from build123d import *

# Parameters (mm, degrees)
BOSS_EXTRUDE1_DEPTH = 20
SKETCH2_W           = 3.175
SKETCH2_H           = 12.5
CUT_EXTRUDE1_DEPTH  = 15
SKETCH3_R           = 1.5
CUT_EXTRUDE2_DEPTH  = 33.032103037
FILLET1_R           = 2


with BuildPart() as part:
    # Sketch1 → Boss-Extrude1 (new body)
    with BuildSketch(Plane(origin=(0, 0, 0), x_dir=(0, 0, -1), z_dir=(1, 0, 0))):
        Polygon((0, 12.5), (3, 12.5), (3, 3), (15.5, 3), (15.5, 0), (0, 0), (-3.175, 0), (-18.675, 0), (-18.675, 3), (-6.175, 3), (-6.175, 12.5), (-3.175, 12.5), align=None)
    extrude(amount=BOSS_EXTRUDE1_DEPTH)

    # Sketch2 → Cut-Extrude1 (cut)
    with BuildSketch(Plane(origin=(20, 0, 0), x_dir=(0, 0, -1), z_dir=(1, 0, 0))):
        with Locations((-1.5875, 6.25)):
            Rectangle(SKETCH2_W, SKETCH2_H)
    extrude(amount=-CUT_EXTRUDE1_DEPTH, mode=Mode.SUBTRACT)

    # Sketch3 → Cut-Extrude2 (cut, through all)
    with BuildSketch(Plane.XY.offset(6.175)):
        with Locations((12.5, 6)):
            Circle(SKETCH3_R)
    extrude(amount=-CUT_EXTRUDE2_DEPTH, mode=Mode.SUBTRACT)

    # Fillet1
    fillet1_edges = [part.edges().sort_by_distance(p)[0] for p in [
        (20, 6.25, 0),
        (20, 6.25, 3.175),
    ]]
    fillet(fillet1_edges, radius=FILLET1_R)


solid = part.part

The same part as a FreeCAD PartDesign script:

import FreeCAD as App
import Part
import Sketcher
from FreeCAD import Vector


def edges_at(feature, points):
    """Names of the edges that pass closest to the given points."""
    edges = feature.Shape.Edges
    near = lambda p: min(range(len(edges)), key=lambda i: edges[i].distToShape(Part.Vertex(*p))[0])
    return sorted({f"Edge{near(p) + 1}" for p in points})

doc = App.newDocument("Part")
body = doc.addObject("PartDesign::Body", "Body")

sketch1 = body.newObject("Sketcher::SketchObject", "Sketch")
sketch1.AttachmentSupport = (doc.getObject("YZ_Plane"), [""])
sketch1.MapMode = "FlatFace"
sketch1.addGeometry(Part.LineSegment(Vector(12.5, -3, 0), Vector(12.5, 6.2, 0)), False)
sketch1.addGeometry(Part.LineSegment(Vector(12.5, 6.2, 0), Vector(3, 6.2, 0)), False)
sketch1.addGeometry(Part.LineSegment(Vector(3, 6.2, 0), Vector(3, 18.7, 0)), False)
sketch1.addGeometry(Part.LineSegment(Vector(3, 18.7, 0), Vector(0, 18.7, 0)), False)
sketch1.addGeometry(Part.LineSegment(Vector(0, 18.7, 0), Vector(0, -15.5, 0)), False)
sketch1.addGeometry(Part.LineSegment(Vector(0, -15.5, 0), Vector(3, -15.5, 0)), False)
sketch1.addGeometry(Part.LineSegment(Vector(3, -15.5, 0), Vector(3, -3, 0)), False)
sketch1.addGeometry(Part.LineSegment(Vector(3, -3, 0), Vector(12.5, -3, 0)), False)
sketch1.addConstraint(Sketcher.Constraint("Coincident", 0, 2, 1, 1))
sketch1.addConstraint(Sketcher.Constraint("Coincident", 1, 2, 2, 1))
sketch1.addConstraint(Sketcher.Constraint("Coincident", 2, 2, 3, 1))
sketch1.addConstraint(Sketcher.Constraint("Coincident", 3, 2, 4, 1))
sketch1.addConstraint(Sketcher.Constraint("Coincident", 4, 2, 5, 1))
sketch1.addConstraint(Sketcher.Constraint("Coincident", 5, 2, 6, 1))
sketch1.addConstraint(Sketcher.Constraint("Coincident", 6, 2, 7, 1))
sketch1.addConstraint(Sketcher.Constraint("Coincident", 7, 2, 0, 1))
sketch1.addConstraint(Sketcher.Constraint("Vertical", 0))
sketch1.addConstraint(Sketcher.Constraint("Horizontal", 1))
sketch1.addConstraint(Sketcher.Constraint("Vertical", 2))
sketch1.addConstraint(Sketcher.Constraint("Horizontal", 3))
sketch1.addConstraint(Sketcher.Constraint("Vertical", 4))
sketch1.addConstraint(Sketcher.Constraint("Horizontal", 5))
sketch1.addConstraint(Sketcher.Constraint("Vertical", 6))
sketch1.addConstraint(Sketcher.Constraint("Horizontal", 7))
sketch1.addConstraint(Sketcher.Constraint("PointOnObject", 3, 2, -2))
sketch1.addConstraint(Sketcher.Constraint("Vertical", 2, 2, 5, 2))
sketch1.addConstraint(Sketcher.Constraint("Equal", 2, 6))
sketch1.addConstraint(Sketcher.Constraint("DistanceX", 3, 2, 3, 1, 3.0))
sketch1.addConstraint(Sketcher.Constraint("DistanceX", 1, 2, 1, 1, 9.5))
sketch1.addConstraint(Sketcher.Constraint("DistanceY", 2, 1, 2, 2, 12.5))
sketch1.addConstraint(Sketcher.Constraint("DistanceY", 6, 2, -1, 1, 3.0))
sketch1.addConstraint(Sketcher.Constraint("DistanceY", 0, 1, 0, 2, 9.175))
pad1 = body.newObject("PartDesign::Pad", "Pad")
pad1.Profile = sketch1
pad1.Length = 20

sketch2 = body.newObject("Sketcher::SketchObject", "Sketch001")
sketch2.AttachmentSupport = (doc.getObject("YZ_Plane"), [""])
sketch2.MapMode = "FlatFace"
sketch2.AttachmentOffset = App.Placement(Vector(0, 0, 20), App.Rotation())
sketch2.addGeometry(Part.LineSegment(Vector(12.5, 3.2, 0), Vector(0, 3.2, 0)), False)
sketch2.addGeometry(Part.LineSegment(Vector(0, 3.2, 0), Vector(0, 0, 0)), False)
sketch2.addGeometry(Part.LineSegment(Vector(0, 0, 0), Vector(12.5, 0, 0)), False)
sketch2.addGeometry(Part.LineSegment(Vector(12.5, 0, 0), Vector(12.5, 3.2, 0)), False)
sketch2.addConstraint(Sketcher.Constraint("Coincident", 0, 2, 1, 1))
sketch2.addConstraint(Sketcher.Constraint("Coincident", 1, 2, 2, 1))
sketch2.addConstraint(Sketcher.Constraint("Coincident", 2, 2, 3, 1))
sketch2.addConstraint(Sketcher.Constraint("Coincident", 3, 2, 0, 1))
sketch2.addConstraint(Sketcher.Constraint("Horizontal", 0))
sketch2.addConstraint(Sketcher.Constraint("Vertical", 1))
sketch2.addConstraint(Sketcher.Constraint("Horizontal", 2))
sketch2.addConstraint(Sketcher.Constraint("Vertical", 3))
sketch2.addConstraint(Sketcher.Constraint("Coincident", 1, 2, -1, 1))
sketch2.addConstraint(Sketcher.Constraint("DistanceX", 0, 2, 0, 1, 12.5))
sketch2.addConstraint(Sketcher.Constraint("DistanceY", 1, 2, 1, 1, 3.175))
pocket1 = body.newObject("PartDesign::Pocket", "Pocket")
pocket1.Profile = sketch2
pocket1.Length = 15

sketch3 = body.newObject("Sketcher::SketchObject", "Sketch002")
sketch3.AttachmentSupport = (doc.getObject("XY_Plane"), [""])
sketch3.MapMode = "FlatFace"
sketch3.AttachmentOffset = App.Placement(Vector(0, 0, 6.175), App.Rotation())
sketch3.addGeometry(Part.Circle(Vector(12.5, 6, 0), Vector(0, 0, 1), 1.5), False)
sketch3.addConstraint(Sketcher.Constraint("Diameter", 0, 3.0))
sketch3.addConstraint(Sketcher.Constraint("DistanceY", -1, 1, 0, 3, 6.0))
sketch3.addConstraint(Sketcher.Constraint("DistanceX", -1, 1, 0, 3, 12.5))
pocket2 = body.newObject("PartDesign::Pocket", "Pocket001")
pocket2.Profile = sketch3
pocket2.Type = "ThroughAll"
doc.recompute()

fillet = body.newObject("PartDesign::Fillet", "Fillet")
fillet.Base = (pocket2, edges_at(pocket2, [(20, 6.25, 0), (20, 6.25, 3.175)]))
fillet.Radius = 2

doc.recompute()
